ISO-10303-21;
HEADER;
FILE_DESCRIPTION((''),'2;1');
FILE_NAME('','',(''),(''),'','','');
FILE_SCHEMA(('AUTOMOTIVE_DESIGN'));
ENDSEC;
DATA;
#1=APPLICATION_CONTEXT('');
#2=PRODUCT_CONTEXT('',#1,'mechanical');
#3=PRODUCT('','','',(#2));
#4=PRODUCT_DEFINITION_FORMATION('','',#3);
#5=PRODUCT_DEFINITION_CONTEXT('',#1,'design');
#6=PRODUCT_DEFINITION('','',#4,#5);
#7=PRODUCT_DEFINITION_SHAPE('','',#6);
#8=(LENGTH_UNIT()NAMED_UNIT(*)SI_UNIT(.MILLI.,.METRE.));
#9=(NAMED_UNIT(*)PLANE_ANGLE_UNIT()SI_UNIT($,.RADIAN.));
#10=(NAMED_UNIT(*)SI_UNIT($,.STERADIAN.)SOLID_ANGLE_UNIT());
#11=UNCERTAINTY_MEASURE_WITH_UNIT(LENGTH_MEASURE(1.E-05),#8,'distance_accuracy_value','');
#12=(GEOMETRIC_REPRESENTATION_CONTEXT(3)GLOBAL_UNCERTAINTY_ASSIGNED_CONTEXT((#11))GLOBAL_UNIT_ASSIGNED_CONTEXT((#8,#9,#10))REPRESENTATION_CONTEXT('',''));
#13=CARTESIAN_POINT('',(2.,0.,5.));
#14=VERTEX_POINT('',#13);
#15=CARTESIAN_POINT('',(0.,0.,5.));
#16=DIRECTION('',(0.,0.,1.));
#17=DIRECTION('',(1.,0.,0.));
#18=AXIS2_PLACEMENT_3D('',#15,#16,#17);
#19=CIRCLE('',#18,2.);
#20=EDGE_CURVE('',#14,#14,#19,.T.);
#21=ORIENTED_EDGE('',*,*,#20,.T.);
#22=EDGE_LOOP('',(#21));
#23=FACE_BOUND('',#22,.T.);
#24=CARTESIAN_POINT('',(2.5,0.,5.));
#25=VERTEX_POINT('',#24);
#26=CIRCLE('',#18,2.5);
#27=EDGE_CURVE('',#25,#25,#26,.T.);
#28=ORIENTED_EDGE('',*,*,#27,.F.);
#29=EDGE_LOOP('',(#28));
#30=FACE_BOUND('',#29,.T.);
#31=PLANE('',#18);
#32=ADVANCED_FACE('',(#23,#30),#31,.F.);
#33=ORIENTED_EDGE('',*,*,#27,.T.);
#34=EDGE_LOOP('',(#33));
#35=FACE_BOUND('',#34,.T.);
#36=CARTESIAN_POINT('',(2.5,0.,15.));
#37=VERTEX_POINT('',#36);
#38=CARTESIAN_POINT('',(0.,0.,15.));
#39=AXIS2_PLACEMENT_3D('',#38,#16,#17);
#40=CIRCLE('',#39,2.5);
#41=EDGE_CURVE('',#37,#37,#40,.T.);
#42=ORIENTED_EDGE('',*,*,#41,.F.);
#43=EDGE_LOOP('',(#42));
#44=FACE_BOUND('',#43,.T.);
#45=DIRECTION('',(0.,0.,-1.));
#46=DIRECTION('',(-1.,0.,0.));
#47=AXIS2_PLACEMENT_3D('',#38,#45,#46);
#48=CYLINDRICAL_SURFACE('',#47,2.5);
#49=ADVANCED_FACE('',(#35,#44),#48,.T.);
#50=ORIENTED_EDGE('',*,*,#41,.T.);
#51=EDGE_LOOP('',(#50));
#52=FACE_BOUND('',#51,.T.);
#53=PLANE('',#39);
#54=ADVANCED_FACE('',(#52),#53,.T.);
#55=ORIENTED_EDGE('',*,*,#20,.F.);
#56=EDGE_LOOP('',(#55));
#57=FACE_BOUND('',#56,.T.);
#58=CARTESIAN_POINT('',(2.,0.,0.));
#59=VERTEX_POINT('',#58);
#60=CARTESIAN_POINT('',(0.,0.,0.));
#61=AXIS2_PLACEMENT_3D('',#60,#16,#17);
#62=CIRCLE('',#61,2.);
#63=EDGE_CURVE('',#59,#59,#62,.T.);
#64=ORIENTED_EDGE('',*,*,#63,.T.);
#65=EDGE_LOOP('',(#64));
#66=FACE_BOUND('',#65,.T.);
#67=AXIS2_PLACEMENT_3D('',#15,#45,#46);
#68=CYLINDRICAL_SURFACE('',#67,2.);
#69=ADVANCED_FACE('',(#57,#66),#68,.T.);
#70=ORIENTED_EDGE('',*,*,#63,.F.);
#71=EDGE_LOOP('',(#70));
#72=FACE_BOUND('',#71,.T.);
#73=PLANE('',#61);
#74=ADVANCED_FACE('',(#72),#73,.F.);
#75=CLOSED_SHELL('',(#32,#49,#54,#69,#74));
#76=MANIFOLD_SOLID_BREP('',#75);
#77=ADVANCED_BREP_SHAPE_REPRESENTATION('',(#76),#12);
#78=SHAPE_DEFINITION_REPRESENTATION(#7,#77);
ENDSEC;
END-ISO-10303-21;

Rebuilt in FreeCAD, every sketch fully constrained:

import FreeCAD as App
import Part
import Sketcher
from FreeCAD import Vector
Q = App.Units.Quantity

doc = App.newDocument("Part")
params = doc.addObject("Spreadsheet::Sheet", "Params")
for row, (alias, value) in enumerate([
    ("sketch1_diameter", "4 mm"),
    ("pad1_length", "5 mm"),
    ("sketch2_diameter", "5 mm"),
    ("pad2_length", "10 mm"),
], start=1):
    params.set(f"A{row}", alias)
    params.set(f"B{row}", "=" + value)
    params.setAlias(f"B{row}", alias)

body = doc.addObject("PartDesign::Body", "Body")

sketch1 = doc.addObject("Sketcher::SketchObject", "Sketch")
body.addObject(sketch1)
sketch1.AttachmentSupport = (doc.XY_Plane, [""])
sketch1.MapMode = "FlatFace"
sketch1.addGeometry(Part.Circle(Vector(0, 0, 0), Vector(0, 0, 1), 2), False)
sketch1.addConstraint(Sketcher.Constraint("Coincident", 0, 3, -1, 1))
sketch1.addConstraint(Sketcher.Constraint("Diameter", 0, Q("4 mm")))
sketch1.setExpression("Constraints[1]", "Params.sketch1_diameter")
pad1 = doc.addObject("PartDesign::Pad", "Pad")
body.addObject(pad1)
pad1.Profile = sketch1
pad1.setExpression("Length", "Params.pad1_length")

sketch2 = doc.addObject("Sketcher::SketchObject", "Sketch001")
body.addObject(sketch2)
sketch2.AttachmentSupport = (doc.XY_Plane, [""])
sketch2.MapMode = "FlatFace"
sketch2.AttachmentOffset = App.Placement(Vector(0, 0, 5), App.Rotation())
sketch2.addGeometry(Part.Circle(Vector(0, 0, 0), Vector(0, 0, 1), 2.5), False)
sketch2.addConstraint(Sketcher.Constraint("Coincident", 0, 3, -1, 1))
sketch2.addConstraint(Sketcher.Constraint("Diameter", 0, Q("5 mm")))
sketch2.setExpression("Constraints[1]", "Params.sketch2_diameter")
pad2 = doc.addObject("PartDesign::Pad", "Pad001")
body.addObject(pad2)
pad2.Profile = sketch2
pad2.setExpression("Length", "Params.pad2_length")

doc.recompute()
